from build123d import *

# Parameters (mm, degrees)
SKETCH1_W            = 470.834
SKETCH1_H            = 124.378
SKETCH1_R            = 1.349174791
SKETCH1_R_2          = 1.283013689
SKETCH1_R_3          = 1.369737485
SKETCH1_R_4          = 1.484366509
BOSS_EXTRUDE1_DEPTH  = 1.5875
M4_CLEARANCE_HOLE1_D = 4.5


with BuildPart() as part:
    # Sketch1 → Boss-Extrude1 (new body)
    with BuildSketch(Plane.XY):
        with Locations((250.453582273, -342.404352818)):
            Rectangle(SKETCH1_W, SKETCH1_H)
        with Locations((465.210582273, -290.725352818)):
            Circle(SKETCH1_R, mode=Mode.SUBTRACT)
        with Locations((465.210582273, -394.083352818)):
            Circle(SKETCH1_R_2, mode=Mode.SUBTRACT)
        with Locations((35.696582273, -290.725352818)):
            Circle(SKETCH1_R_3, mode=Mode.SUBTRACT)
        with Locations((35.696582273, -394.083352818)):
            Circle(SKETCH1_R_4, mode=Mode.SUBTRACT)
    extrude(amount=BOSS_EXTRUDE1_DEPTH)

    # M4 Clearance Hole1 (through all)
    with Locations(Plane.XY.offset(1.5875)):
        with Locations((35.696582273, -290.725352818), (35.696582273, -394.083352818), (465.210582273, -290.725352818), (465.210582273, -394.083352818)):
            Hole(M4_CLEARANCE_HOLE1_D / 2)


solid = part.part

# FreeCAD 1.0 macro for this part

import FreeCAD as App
import Part
import Sketcher
from FreeCAD import Vector

doc = App.newDocument("Part")
params = doc.addObject("Spreadsheet::Sheet", "Params")
for row, (alias, value) in enumerate([
    ("pad1_length", "1.5875 mm"),
    ("sketch2_diameter", "4.5 mm"),
    ("hole_diameter", "4.5 mm"),
], start=1):
    params.set(f"A{row}", alias)
    params.set(f"B{row}", "=" + value)
    params.setAlias(f"B{row}", alias)

body = doc.addObject("PartDesign::Body", "Body")

# Sketch on XY plane
sketch1 = doc.addObject("Sketcher::SketchObject", "Sketch")
body.addObject(sketch1)
sketch1.AttachmentSupport = (doc.XY_Plane, [""])
sketch1.MapMode = "FlatFace"
sketch1.addGeometry([
    Part.LineSegment(Vector(15.036582, -280.215353, 0), Vector(15.036582, -404.593353, 0)),  # 0
    Part.LineSegment(Vector(15.036582, -404.593353, 0), Vector(485.870582, -404.593353, 0)),  # 1
    Part.LineSegment(Vector(485.870582, -404.593353, 0), Vector(485.870582, -280.215353, 0)),  # 2
    Part.LineSegment(Vector(485.870582, -280.215353, 0), Vector(15.036582, -280.215353, 0)),  # 3
    Part.Circle(Vector(35.696582, -394.083353, 0), Vector(0, 0, 1), 1.484367),  # 4
    Part.Circle(Vector(465.210582, -394.083353, 0), Vector(0, 0, 1), 1.283014),  # 5
    Part.Circle(Vector(35.696582, -290.725353, 0), Vector(0, 0, 1), 1.369737),  # 6
    Part.Circle(Vector(465.210582, -290.725353, 0), Vector(0, 0, 1), 1.349175),  # 7
], False)
sketch1.addConstraint([
    Sketcher.Constraint("Coincident", 0, 2, 1, 1),
    Sketcher.Constraint("Coincident", 1, 2, 2, 1),
    Sketcher.Constraint("Coincident", 2, 2, 3, 1),
    Sketcher.Constraint("Coincident", 3, 2, 0, 1),
    Sketcher.Constraint("Vertical", 0),
    Sketcher.Constraint("Horizontal", 1),
    Sketcher.Constraint("Vertical", 2),
    Sketcher.Constraint("Horizontal", 3),
    Sketcher.Constraint("Horizontal", 4, 3, 5, 3),
    Sketcher.Constraint("Horizontal", 6, 3, 7, 3),
    Sketcher.Constraint("Vertical", 4, 3, 6, 3),
    Sketcher.Constraint("Vertical", 5, 3, 7, 3),
    Sketcher.Constraint("Diameter", 7, 2.69835),
    Sketcher.Constraint("DistanceX", 1, 1, 1, 2, 470.834),
    Sketcher.Constraint("DistanceY", 0, 2, 0, 1, 124.378),
    Sketcher.Constraint("DistanceX", 0, 2, 4, 3, 20.66),
    Sketcher.Constraint("DistanceY", 0, 2, 4, 3, 10.51),
    Sketcher.Constraint("DistanceX", 5, 3, 1, 2, 20.66),
    Sketcher.Constraint("DistanceY", 7, 3, 2, 2, 10.51),
    Sketcher.Constraint("Diameter", 4, 2.968733),
    Sketcher.Constraint("Diameter", 5, 2.566027),
    Sketcher.Constraint("Diameter", 6, 2.739475),
    Sketcher.Constraint("DistanceX", -1, 1, 4, 3, 35.696582),
    Sketcher.Constraint("DistanceY", 4, 3, -1, 1, 394.083353),
])
pad1 = doc.addObject("PartDesign::Pad", "Pad")
body.addObject(pad1)
pad1.Profile = sketch1
pad1.setExpression("Length", "Params.pad1_length")

# Sketch on XY plane
sketch2 = doc.addObject("Sketcher::SketchObject", "Sketch001")
body.addObject(sketch2)
sketch2.AttachmentSupport = (doc.XY_Plane, [""])
sketch2.MapMode = "FlatFace"
sketch2.AttachmentOffset = App.Placement(Vector(0, 0, 1.5875), App.Rotation())
sketch2.addGeometry([
    Part.Circle(Vector(35.696582, -290.725353, 0), Vector(0, 0, 1), 2.25),
    Part.Circle(Vector(35.696582, -394.083353, 0), Vector(0, 0, 1), 2.25),
    Part.Circle(Vector(465.210582, -290.725353, 0), Vector(0, 0, 1), 2.25),
    Part.Circle(Vector(465.210582, -394.083353, 0), Vector(0, 0, 1), 2.25),
], False)
sketch2.addConstraint([
    Sketcher.Constraint("Equal", 0, 1),
    Sketcher.Constraint("Equal", 1, 2),
    Sketcher.Constraint("Equal", 2, 3),
    Sketcher.Constraint("Horizontal", 0, 3, 2, 3),
    Sketcher.Constraint("Horizontal", 1, 3, 3, 3),
    Sketcher.Constraint("Vertical", 0, 3, 1, 3),
    Sketcher.Constraint("Vertical", 2, 3, 3, 3),
    Sketcher.Constraint("Diameter", 0, 4.5),
    Sketcher.Constraint("DistanceY", 1, 3, 0, 3, 103.358),
    Sketcher.Constraint("DistanceX", 0, 3, 2, 3, 429.514),
    Sketcher.Constraint("DistanceX", -1, 1, 0, 3, 35.696582),
    Sketcher.Constraint("DistanceY", 0, 3, -1, 1, 290.725353),
])
sketch2.setExpression("Constraints[7]", "Params.sketch2_diameter")
doc.recompute()
hole = doc.addObject("PartDesign::Hole", "Hole")
body.addObject(hole)
hole.Profile = sketch2
hole.ThreadType = "None"
hole.setExpression("Diameter", "Params.hole_diameter")
hole.DepthType = "ThroughAll"

doc.recompute()
